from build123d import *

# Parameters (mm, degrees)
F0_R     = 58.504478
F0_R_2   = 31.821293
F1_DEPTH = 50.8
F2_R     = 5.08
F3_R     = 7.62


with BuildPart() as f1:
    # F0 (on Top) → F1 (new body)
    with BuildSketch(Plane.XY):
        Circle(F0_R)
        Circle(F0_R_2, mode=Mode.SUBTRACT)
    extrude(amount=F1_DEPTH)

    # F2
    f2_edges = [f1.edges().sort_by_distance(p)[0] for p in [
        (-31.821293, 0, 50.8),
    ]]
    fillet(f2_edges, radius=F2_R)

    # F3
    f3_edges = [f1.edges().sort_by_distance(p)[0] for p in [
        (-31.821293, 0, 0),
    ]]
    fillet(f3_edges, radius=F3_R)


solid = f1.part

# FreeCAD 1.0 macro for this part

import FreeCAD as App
import Part
import Sketcher
from FreeCAD import Vector
Q = App.Units.Quantity


def edges_at(feature, points):
    """Names of the edges that pass closest to the given points."""
    edges = feature.Shape.Edges
    near = lambda p: min(range(len(edges)), key=lambda i: edges[i].distToShape(Part.Vertex(*p))[0])
    return sorted({f"Edge{near(p) + 1}" for p in points})

doc = App.newDocument("Part")
body = doc.addObject("PartDesign::Body", "Body")

sketch1 = body.newObject("Sketcher::SketchObject", "Sketch")
sketch1.AttachmentSupport = (doc.getObject("XY_Plane"), [""])
sketch1.MapMode = "FlatFace"
sketch1.addGeometry(Part.Circle(Vector(0, 0, 0), Vector(0, 0, 1), 59), False)
sketch1.addGeometry(Part.Circle(Vector(0, 0, 0), Vector(0, 0, 1), 32), False)
sketch1.addConstraint(Sketcher.Constraint("Coincident", 0, 3, -1, 1))
sketch1.addConstraint(Sketcher.Constraint("Coincident", 1, 3, -1, 1))
sketch1.addConstraint(Sketcher.Constraint("Diameter", 0, Q("117.008956 mm")))
sketch1.addConstraint(Sketcher.Constraint("Diameter", 1, Q("63.642586 mm")))
pad1 = body.newObject("PartDesign::Pad", "Pad")
pad1.Profile = sketch1
pad1.Length = Q("2 in")
doc.recompute()

fillet = body.newObject("PartDesign::Fillet", "Fillet")
fillet.Base = (pad1, edges_at(pad1, [(-31.821, 0, 50.8)]))
fillet.Radius = Q("0.2 in")
doc.recompute()

fillet2 = body.newObject("PartDesign::Fillet", "Fillet001")
fillet2.Base = (fillet, edges_at(fillet, [(-31.821, 0, 0)]))
fillet2.Radius = Q("0.3 in")

doc.recompute()
